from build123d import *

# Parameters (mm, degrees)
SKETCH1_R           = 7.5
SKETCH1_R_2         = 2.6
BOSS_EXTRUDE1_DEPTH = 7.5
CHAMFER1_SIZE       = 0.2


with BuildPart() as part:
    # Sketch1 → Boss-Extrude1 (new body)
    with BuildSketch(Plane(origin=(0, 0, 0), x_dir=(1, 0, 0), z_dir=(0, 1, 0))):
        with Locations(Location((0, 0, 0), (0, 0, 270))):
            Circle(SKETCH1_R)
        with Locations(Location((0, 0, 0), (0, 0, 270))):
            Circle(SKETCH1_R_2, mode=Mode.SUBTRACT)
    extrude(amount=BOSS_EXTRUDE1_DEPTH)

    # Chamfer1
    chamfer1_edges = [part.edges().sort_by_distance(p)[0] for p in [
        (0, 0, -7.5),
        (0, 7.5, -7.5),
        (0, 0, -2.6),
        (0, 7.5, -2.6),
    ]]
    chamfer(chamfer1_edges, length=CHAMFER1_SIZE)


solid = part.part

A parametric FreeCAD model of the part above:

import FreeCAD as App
import Part
import Sketcher

V = App.Vector
Q = App.Units.Quantity


def edges_at(feature, points):
    """Names of the edges that pass closest to the given points."""
    edges = feature.Shape.Edges
    near = lambda p: min(range(len(edges)), key=lambda i: edges[i].distToShape(Part.Vertex(*p))[0])
    return sorted({f"Edge{near(p) + 1}" for p in points})

doc = App.newDocument("Part")
params = doc.addObject("Spreadsheet::Sheet", "Params")
for row, (alias, value) in enumerate([
    ("sketch1_diameter", "15 mm"),
    ("sketch1_diameter2", "5.2 mm"),
    ("pad1_length", "7.5 mm"),
    ("chamfer_size", "0.2 mm"),
], start=1):
    params.set(f"A{row}", alias)
    params.set(f"B{row}", "=" + value)
    params.setAlias(f"B{row}", alias)

body = doc.addObject("PartDesign::Body", "Body")

sketch1 = body.newObject("Sketcher::SketchObject", "Sketch")
sketch1.AttachmentSupport = (doc.getObject("XZ_Plane"), [""])
sketch1.MapMode = "FlatFace"
sketch1.addGeometry([
    Part.Circle(V(0, 0, 0), V(0, 0, 1), 7.5),
    Part.Circle(V(0, 0, 0), V(0, 0, 1), 2.6),
], False)
sketch1.addConstraint([
    Sketcher.Constraint("Coincident", 0, 3, -1, 1),
    Sketcher.Constraint("Coincident", 1, 3, -1, 1),
    Sketcher.Constraint("Diameter", 0, Q("15 mm")),
    Sketcher.Constraint("Diameter", 1, Q("5.2 mm")),
])
sketch1.setExpression("Constraints[2]", "Params.sketch1_diameter")
sketch1.setExpression("Constraints[3]", "Params.sketch1_diameter2")
pad1 = body.newObject("PartDesign::Pad", "Pad")
pad1.Profile = sketch1
pad1.setExpression("Length", "Params.pad1_length")
pad1.Reversed = True
doc.recompute()

chamfer = body.newObject("PartDesign::Chamfer", "Chamfer")
chamfer.Base = (pad1, edges_at(pad1, [
    (0, 0, -7.5),
    (0, 7.5, -7.5),
    (0, 0, -2.6),
    (0, 7.5, -2.6),
]))
chamfer.setExpression("Size", "Params.chamfer_size")

doc.recompute()
